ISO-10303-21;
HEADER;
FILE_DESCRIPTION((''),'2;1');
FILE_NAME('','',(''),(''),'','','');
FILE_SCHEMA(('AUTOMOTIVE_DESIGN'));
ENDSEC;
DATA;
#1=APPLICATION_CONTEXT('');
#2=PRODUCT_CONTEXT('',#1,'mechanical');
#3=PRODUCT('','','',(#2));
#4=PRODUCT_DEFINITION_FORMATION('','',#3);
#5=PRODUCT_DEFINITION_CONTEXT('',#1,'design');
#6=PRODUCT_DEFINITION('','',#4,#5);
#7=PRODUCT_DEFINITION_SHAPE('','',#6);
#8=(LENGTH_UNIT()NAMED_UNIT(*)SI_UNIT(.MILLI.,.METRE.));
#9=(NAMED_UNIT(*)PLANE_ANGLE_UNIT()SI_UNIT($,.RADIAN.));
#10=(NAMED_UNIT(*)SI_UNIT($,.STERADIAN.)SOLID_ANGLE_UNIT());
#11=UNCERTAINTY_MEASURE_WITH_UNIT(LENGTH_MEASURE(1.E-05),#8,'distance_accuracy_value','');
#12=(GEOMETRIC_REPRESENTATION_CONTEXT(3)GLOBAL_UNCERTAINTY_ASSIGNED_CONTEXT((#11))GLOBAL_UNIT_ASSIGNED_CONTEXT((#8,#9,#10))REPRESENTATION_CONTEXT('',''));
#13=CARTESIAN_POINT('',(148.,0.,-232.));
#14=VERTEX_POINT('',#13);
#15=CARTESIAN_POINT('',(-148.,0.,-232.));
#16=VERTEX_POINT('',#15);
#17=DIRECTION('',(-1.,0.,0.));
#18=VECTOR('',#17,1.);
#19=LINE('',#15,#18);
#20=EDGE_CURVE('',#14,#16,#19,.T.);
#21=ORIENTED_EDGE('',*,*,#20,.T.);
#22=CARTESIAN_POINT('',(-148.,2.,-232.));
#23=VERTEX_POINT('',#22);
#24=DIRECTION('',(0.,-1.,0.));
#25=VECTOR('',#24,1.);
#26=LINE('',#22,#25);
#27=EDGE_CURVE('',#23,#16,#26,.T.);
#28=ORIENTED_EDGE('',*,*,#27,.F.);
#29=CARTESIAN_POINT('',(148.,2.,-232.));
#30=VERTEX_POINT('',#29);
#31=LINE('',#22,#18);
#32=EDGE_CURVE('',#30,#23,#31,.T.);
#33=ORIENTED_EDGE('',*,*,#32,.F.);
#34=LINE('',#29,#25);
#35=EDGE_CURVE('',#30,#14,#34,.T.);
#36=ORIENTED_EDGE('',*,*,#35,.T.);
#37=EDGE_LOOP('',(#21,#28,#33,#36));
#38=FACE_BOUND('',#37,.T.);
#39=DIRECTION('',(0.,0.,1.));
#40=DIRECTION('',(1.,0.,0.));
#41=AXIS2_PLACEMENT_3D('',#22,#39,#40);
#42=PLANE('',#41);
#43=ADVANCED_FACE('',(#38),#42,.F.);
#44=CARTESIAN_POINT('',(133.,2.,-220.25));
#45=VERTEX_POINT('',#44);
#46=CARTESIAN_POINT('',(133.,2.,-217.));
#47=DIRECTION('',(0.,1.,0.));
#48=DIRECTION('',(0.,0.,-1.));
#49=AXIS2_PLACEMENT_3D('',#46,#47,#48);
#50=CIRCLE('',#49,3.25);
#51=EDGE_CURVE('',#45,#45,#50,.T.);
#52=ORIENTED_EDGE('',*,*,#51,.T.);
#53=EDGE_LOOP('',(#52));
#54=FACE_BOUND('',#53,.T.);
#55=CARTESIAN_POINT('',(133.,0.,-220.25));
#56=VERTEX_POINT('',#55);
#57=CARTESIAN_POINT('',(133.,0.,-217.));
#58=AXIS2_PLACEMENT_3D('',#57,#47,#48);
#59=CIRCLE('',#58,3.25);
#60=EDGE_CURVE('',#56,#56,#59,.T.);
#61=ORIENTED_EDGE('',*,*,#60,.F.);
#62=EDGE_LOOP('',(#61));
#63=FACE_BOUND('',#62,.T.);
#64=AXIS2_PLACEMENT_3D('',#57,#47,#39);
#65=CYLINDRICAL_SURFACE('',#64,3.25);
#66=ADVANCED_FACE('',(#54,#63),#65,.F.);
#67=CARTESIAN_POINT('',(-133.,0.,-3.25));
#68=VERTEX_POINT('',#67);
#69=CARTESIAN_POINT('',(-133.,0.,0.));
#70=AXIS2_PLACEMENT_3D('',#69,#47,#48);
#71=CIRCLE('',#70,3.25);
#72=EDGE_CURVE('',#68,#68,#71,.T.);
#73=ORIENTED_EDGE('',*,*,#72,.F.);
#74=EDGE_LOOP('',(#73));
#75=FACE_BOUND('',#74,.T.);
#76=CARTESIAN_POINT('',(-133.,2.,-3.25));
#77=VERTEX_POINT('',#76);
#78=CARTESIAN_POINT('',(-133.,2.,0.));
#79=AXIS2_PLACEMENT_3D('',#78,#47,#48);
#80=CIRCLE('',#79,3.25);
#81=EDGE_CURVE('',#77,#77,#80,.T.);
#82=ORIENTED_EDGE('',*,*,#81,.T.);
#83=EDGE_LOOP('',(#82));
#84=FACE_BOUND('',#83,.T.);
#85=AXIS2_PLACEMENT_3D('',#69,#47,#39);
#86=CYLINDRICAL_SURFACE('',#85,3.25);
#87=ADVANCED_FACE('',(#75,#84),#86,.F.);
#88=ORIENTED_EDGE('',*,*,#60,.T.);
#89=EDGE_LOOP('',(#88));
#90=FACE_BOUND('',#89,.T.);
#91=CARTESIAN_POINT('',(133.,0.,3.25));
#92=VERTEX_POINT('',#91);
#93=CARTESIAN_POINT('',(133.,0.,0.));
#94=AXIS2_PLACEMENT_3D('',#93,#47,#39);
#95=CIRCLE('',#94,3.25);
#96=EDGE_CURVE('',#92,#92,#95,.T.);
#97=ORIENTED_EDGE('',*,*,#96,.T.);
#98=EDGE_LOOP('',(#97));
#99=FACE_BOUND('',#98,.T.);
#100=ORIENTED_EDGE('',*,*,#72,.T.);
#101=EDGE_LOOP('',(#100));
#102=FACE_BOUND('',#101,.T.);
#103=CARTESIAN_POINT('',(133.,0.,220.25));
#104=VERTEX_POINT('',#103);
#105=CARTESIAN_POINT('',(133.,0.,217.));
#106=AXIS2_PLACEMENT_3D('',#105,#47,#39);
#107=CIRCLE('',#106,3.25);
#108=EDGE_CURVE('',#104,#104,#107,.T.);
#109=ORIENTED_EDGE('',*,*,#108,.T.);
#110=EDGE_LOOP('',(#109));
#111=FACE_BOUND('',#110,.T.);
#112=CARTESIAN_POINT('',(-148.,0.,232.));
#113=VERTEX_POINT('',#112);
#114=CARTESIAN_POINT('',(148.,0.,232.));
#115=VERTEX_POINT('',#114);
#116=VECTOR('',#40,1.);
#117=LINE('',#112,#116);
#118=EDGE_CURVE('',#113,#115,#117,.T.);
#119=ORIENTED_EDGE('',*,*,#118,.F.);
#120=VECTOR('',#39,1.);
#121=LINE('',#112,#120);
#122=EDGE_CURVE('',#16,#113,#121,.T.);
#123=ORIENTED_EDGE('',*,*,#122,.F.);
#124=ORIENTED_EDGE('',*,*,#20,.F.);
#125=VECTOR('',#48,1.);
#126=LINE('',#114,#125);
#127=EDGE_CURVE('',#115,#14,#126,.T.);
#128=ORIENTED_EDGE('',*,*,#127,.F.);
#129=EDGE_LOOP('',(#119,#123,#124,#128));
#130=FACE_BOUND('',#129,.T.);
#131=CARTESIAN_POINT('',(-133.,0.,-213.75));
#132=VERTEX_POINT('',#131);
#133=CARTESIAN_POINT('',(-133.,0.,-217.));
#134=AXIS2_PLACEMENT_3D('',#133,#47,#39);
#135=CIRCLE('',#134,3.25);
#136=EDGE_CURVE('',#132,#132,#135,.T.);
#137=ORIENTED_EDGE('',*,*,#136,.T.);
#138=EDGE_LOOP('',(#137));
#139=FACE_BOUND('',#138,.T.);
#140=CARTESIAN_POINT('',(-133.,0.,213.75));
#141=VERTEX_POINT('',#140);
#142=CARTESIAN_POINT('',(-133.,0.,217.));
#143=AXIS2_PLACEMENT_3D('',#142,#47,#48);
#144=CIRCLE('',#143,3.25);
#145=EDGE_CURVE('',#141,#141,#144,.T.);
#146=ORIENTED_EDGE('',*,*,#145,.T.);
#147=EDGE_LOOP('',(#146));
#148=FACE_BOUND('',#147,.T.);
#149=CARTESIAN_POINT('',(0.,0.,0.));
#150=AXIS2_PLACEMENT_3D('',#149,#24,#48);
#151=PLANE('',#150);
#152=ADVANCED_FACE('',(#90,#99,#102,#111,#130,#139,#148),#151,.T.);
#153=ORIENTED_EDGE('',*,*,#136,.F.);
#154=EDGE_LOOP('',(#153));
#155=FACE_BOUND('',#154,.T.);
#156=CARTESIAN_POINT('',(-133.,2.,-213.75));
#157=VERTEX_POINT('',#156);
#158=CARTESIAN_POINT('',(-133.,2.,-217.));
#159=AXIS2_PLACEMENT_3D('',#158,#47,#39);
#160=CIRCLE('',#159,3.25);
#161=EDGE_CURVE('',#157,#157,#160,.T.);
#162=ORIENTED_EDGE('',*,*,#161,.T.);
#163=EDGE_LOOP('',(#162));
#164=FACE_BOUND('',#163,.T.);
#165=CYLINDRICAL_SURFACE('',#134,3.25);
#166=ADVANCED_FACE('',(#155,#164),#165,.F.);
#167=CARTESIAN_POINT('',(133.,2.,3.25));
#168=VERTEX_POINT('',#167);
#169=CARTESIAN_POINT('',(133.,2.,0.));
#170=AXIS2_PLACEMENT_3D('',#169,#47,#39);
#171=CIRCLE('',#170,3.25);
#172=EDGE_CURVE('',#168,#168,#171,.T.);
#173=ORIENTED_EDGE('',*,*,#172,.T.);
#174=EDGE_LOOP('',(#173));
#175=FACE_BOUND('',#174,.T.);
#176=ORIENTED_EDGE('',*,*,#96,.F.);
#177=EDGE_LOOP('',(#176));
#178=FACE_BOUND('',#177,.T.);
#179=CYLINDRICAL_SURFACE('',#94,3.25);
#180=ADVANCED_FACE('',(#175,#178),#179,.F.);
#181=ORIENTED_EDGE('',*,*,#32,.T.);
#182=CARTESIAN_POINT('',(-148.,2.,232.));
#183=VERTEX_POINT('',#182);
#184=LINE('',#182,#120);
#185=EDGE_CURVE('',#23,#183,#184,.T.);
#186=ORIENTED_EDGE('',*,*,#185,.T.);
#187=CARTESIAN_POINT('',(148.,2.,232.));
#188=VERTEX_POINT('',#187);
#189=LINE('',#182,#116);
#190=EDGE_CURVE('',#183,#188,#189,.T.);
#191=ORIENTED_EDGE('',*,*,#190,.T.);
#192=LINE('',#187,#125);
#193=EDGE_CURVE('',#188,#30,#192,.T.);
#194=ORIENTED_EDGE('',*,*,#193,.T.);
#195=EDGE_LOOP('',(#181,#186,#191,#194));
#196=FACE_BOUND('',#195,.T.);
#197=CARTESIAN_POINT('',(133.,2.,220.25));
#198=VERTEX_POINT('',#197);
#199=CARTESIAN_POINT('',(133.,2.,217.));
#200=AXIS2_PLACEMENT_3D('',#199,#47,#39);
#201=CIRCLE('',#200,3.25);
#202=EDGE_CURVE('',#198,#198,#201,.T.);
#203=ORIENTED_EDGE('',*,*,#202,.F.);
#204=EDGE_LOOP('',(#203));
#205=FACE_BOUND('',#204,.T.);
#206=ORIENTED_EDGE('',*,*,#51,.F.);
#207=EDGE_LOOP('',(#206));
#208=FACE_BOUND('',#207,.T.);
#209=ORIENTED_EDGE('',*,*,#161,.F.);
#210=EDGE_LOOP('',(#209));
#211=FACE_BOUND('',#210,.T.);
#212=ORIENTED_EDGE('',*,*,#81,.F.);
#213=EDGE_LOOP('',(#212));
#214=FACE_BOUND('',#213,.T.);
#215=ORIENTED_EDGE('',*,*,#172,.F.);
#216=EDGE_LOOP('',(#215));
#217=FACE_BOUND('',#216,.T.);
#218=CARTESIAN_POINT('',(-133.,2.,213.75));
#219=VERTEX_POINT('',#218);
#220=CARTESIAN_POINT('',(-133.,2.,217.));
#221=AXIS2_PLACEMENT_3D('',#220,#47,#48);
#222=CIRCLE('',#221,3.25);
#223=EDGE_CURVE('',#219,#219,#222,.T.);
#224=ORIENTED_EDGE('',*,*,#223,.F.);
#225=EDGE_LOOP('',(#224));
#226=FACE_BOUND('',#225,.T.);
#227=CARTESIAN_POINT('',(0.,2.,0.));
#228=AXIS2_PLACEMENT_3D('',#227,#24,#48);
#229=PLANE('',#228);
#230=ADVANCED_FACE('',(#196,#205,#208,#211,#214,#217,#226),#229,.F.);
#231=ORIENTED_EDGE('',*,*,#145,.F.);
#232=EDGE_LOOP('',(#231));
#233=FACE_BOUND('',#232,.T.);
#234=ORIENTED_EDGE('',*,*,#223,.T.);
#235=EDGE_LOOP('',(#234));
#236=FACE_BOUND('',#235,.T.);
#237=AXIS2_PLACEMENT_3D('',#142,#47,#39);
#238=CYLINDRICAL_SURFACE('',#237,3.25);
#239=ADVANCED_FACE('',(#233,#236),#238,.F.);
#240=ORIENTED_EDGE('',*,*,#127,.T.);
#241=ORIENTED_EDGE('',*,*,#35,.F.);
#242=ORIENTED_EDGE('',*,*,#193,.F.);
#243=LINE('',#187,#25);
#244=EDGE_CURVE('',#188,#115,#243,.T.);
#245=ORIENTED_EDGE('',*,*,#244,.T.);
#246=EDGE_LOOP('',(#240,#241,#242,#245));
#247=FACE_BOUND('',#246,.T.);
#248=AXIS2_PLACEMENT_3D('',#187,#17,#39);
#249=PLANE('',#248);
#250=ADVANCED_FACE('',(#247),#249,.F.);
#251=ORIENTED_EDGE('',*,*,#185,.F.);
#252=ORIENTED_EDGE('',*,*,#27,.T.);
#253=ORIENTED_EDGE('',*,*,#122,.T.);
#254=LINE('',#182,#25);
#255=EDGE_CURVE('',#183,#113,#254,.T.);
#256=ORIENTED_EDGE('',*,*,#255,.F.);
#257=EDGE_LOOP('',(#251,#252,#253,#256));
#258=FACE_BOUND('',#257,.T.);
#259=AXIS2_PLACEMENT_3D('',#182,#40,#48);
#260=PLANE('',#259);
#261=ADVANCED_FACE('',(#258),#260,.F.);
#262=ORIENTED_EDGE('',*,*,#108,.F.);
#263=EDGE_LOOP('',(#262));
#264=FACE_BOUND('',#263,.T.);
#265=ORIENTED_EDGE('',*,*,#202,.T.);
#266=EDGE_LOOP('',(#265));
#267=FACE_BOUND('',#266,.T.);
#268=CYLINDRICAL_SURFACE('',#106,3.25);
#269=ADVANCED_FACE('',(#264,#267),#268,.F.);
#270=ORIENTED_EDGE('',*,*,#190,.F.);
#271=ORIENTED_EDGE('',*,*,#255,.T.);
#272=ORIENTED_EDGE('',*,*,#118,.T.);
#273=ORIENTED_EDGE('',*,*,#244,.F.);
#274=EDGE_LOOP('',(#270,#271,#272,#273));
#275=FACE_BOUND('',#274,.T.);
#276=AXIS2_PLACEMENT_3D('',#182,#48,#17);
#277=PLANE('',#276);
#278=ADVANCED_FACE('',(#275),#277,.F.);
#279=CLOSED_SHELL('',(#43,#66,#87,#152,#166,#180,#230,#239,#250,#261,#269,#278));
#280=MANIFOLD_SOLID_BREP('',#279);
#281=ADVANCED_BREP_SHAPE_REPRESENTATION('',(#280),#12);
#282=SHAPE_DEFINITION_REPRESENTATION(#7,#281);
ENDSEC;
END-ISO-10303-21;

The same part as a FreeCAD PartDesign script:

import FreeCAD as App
import Part
import Sketcher

V = App.Vector


def add_polygon(sketch, points):
    """Adds a closed chain of lines whose ends are joined by coincident constraints."""
    first, n = sketch.GeometryCount, len(points)
    for a, b in zip(points, points[1:] + points[:1]):
        sketch.addGeometry(Part.LineSegment(App.Vector(*a, 0), App.Vector(*b, 0)), False)
    for i in range(n):
        sketch.addConstraint(Sketcher.Constraint("Coincident", first + i, 2, first + (i + 1) % n, 1))

doc = App.newDocument("Part")
params = doc.addObject("Spreadsheet::Sheet", "Params")
for row, (alias, value) in enumerate([
    ("sketch1_width", "296 mm"),
    ("sketch1_height", "464 mm"),
    ("pad1_length", "2 mm"),
    ("sketch2_diameter", "6.5 mm"),
    ("pocket1_length", "2 mm"),
], start=1):
    params.set(f"A{row}", alias)
    params.set(f"B{row}", "=" + value)
    params.setAlias(f"B{row}", alias)

body = doc.addObject("PartDesign::Body", "Body")

# Sketch on XZ plane
sketch1 = body.newObject("Sketcher::SketchObject", "Sketch")
sketch1.AttachmentSupport = (doc.getObject("XZ_Plane"), [""])
sketch1.MapMode = "FlatFace"
add_polygon(sketch1, [(-148, -232), (-148, 232), (148, 232), (148, -232)])  # lines 0-3
sketch1.addConstraint(Sketcher.Constraint("Vertical", 0))
sketch1.addConstraint(Sketcher.Constraint("Horizontal", 1))
sketch1.addConstraint(Sketcher.Constraint("Vertical", 2))
sketch1.addConstraint(Sketcher.Constraint("Horizontal", 3))
sketch1.addConstraint(Sketcher.Constraint("Symmetric", 0, 2, 2, 2, -1, 1))
sketch1.addConstraint(Sketcher.Constraint("DistanceX", 1, 1, 1, 2, 296.0))
sketch1.addConstraint(Sketcher.Constraint("DistanceY", 0, 1, 0, 2, 464.0))
sketch1.setExpression("Constraints[9]", "Params.sketch1_width")
sketch1.setExpression("Constraints[10]", "Params.sketch1_height")
pad1 = body.newObject("PartDesign::Pad", "Pad")
pad1.Profile = sketch1
pad1.setExpression("Length", "Params.pad1_length")
pad1.Reversed = True

# Sketch on XZ plane
sketch2 = body.newObject("Sketcher::SketchObject", "Sketch001")
sketch2.AttachmentSupport = (doc.getObject("XZ_Plane"), [""])
sketch2.MapMode = "FlatFace"
sketch2.AttachmentOffset = App.Placement(V(0, 0, -2), App.Rotation())
sketch2.addGeometry(Part.Circle(V(-133, -217, 0), V(0, 0, 1), 3.2), False)
sketch2.addGeometry(Part.Circle(V(133, -217, 0), V(0, 0, 1), 3.2), False)
sketch2.addGeometry(Part.Circle(V(-133, 217, 0), V(0, 0, 1), 3.2), False)
sketch2.addGeometry(Part.Circle(V(133, 217, 0), V(0, 0, 1), 3.2), False)
sketch2.addGeometry(Part.Circle(V(133, 0, 0), V(0, 0, 1), 3.2), False)
sketch2.addGeometry(Part.Circle(V(-133, 0, 0), V(0, 0, 1), 3.2), False)
sketch2.addConstraint(Sketcher.Constraint("Equal", 0, 1))
sketch2.addConstraint(Sketcher.Constraint("Equal", 1, 2))
sketch2.addConstraint(Sketcher.Constraint("Equal", 2, 3))
sketch2.addConstraint(Sketcher.Constraint("Equal", 3, 4))
sketch2.addConstraint(Sketcher.Constraint("Equal", 4, 5))
sketch2.addConstraint(Sketcher.Constraint("Symmetric", 1, 3, 2, 3, -1, 1))
sketch2.addConstraint(Sketcher.Constraint("Symmetric", 0, 3, 3, 3, -1, 1))
sketch2.addConstraint(Sketcher.Constraint("Symmetric", 4, 3, 5, 3, -1, 1))
sketch2.addConstraint(Sketcher.Constraint("Symmetric", 0, 3, 1, 3, -2))
sketch2.addConstraint(Sketcher.Constraint("PointOnObject", 4, 3, -1))
sketch2.addConstraint(Sketcher.Constraint("Vertical", 3, 3, 4, 3))
sketch2.addConstraint(Sketcher.Constraint("Diameter", 0, 6.5))
sketch2.addConstraint(Sketcher.Constraint("DistanceX", 0, 3, -1, 1, 133.0))
sketch2.addConstraint(Sketcher.Constraint("DistanceY", 0, 3, -1, 1, 217.0))
sketch2.setExpression("Constraints[11]", "Params.sketch2_diameter")
pocket1 = body.newObject("PartDesign::Pocket", "Pocket")
pocket1.Profile = sketch2
pocket1.setExpression("Length", "Params.pocket1_length")
pocket1.Reversed = True

doc.recompute()
